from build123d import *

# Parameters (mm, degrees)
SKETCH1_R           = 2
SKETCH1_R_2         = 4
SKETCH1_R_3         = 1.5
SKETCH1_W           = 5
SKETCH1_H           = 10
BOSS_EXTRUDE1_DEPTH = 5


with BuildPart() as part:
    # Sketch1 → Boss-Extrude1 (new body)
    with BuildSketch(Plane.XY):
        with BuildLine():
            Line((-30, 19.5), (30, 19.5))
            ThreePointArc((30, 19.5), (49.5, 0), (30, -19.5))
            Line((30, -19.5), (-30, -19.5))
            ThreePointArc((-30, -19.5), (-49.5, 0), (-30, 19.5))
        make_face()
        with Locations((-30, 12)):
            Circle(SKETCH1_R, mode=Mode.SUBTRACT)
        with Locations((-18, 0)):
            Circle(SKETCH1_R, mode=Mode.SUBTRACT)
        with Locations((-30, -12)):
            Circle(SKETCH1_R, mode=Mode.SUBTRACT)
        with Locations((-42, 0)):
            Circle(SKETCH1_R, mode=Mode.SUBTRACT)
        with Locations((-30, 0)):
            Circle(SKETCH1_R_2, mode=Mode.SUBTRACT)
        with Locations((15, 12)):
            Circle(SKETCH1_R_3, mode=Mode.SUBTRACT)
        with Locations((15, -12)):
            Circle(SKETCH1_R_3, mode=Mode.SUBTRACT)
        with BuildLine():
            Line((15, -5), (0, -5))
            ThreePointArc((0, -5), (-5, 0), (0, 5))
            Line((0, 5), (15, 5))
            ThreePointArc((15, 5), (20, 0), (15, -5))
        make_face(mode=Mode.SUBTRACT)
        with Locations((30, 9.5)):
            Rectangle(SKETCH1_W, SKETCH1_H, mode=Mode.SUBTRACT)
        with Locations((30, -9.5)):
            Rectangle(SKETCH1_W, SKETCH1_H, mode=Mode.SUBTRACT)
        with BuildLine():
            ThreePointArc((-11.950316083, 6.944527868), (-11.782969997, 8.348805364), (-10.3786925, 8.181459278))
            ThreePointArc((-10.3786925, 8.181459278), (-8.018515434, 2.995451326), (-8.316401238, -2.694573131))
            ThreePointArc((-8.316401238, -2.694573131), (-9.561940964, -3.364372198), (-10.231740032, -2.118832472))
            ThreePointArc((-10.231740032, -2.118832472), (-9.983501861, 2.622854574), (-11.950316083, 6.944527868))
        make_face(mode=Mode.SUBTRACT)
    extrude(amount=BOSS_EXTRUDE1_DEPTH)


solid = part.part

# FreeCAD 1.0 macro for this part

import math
import FreeCAD as App
import Part
import Sketcher
from FreeCAD import Vector
Q = App.Units.Quantity

doc = App.newDocument("Part")
params = doc.addObject("Spreadsheet::Sheet", "Params")
for row, (alias, value) in enumerate([
    ("sketch1_diameter", "3 mm"),
    ("sketch1_diameter2", "4 mm"),
    ("sketch1_diameter3", "3 mm"),
    ("sketch1_diameter4", "4 mm"),
    ("sketch1_diameter5", "8 mm"),
    ("pad1_length", "5 mm"),
], start=1):
    params.set(f"A{row}", alias)
    params.set(f"B{row}", "=" + value)
    params.setAlias(f"B{row}", alias)

body = doc.addObject("PartDesign::Body", "Body")

# Sketch on XY plane
sketch1 = doc.addObject("Sketcher::SketchObject", "Sketch")
body.addObject(sketch1)
sketch1.AttachmentSupport = (doc.XY_Plane, [""])
sketch1.MapMode = "FlatFace"
sketch1.addGeometry([
    Part.LineSegment(Vector(30, 19.5, 0), Vector(-30, 19.5, 0)),  # 0
    Part.ArcOfCircle(Part.Circle(Vector(-30, 0, 0), Vector(0, 0, 1), 19.5), math.radians(90), math.radians(270)),  # 1
    Part.LineSegment(Vector(-30, -19.5, 0), Vector(30, -19.5, 0)),  # 2
    Part.ArcOfCircle(Part.Circle(Vector(30, 0, 0), Vector(0, 0, 1), 19.5), math.radians(-90), math.radians(90)),  # 3
    Part.Circle(Vector(15, -12, 0), Vector(0, 0, 1), 1.5),  # 4
    Part.LineSegment(Vector(27.5, -14.5, 0), Vector(27.5, -4.5, 0)),  # 5
    Part.LineSegment(Vector(27.5, -4.5, 0), Vector(32.5, -4.5, 0)),  # 6
    Part.LineSegment(Vector(32.5, -4.5, 0), Vector(32.5, -14.5, 0)),  # 7
    Part.LineSegment(Vector(32.5, -14.5, 0), Vector(27.5, -14.5, 0)),  # 8
    Part.Circle(Vector(-30, -12, 0), Vector(0, 0, 1), 2),  # 9
    Part.LineSegment(Vector(15, -5, 0), Vector(0, -5, 0)),  # 10
    Part.ArcOfCircle(Part.Circle(Vector(0, 0, 0), Vector(0, 0, 1), 5), math.radians(90), math.radians(270)),  # 11
    Part.LineSegment(Vector(0, 5, 0), Vector(15, 5, 0)),  # 12
    Part.ArcOfCircle(Part.Circle(Vector(15, 0, 0), Vector(0, 0, 1), 5), math.radians(-90), math.radians(90)),  # 13
    Part.LineSegment(Vector(27.5, 4.5, 0), Vector(27.5, 14.5, 0)),  # 14
    Part.LineSegment(Vector(27.5, 14.5, 0), Vector(32.5, 14.5, 0)),  # 15
    Part.LineSegment(Vector(32.5, 14.5, 0), Vector(32.5, 4.5, 0)),  # 16
    Part.LineSegment(Vector(32.5, 4.5, 0), Vector(27.5, 4.5, 0)),  # 17
    Part.Circle(Vector(15, 12, 0), Vector(0, 0, 1), 1.5),  # 18
    Part.ArcOfCircle(Part.Circle(Vector(-11.164504, 7.562994, 0), Vector(0, 0, 1), 1), math.radians(38.204179), math.radians(218.204178)),  # 19
    Part.ArcOfCircle(Part.Circle(Vector(-19.808434, 0.759871, 0), Vector(0, 0, 1), 12), math.radians(-16.730499), math.radians(38.204178)),  # 20
    Part.ArcOfCircle(Part.Circle(Vector(-9.274071, -2.406703, 0), Vector(0, 0, 1), 1), math.radians(163.269501), math.radians(343.269501)),  # 21
    Part.ArcOfCircle(Part.Circle(Vector(-19.808434, 0.759871, 0), Vector(0, 0, 1), 10), math.radians(-16.730499), math.radians(38.204178)),  # 22
    Part.Circle(Vector(-18, 0, 0), Vector(0, 0, 1), 2),  # 23
    Part.Circle(Vector(-30, 0, 0), Vector(0, 0, 1), 4),  # 24
    Part.Circle(Vector(-42, 0, 0), Vector(0, 0, 1), 2),  # 25
    Part.Circle(Vector(-30, 12, 0), Vector(0, 0, 1), 2),  # 26
], False)
sketch1.addConstraint([
    Sketcher.Constraint("Coincident", 0, 2, 1, 1),
    Sketcher.Constraint("Coincident", 1, 2, 2, 1),
    Sketcher.Constraint("Coincident", 2, 2, 3, 1),
    Sketcher.Constraint("Coincident", 3, 2, 0, 1),
    Sketcher.Constraint("Coincident", 5, 2, 6, 1),
    Sketcher.Constraint("Coincident", 6, 2, 7, 1),
    Sketcher.Constraint("Coincident", 7, 2, 8, 1),
    Sketcher.Constraint("Coincident", 8, 2, 5, 1),
    Sketcher.Constraint("Coincident", 10, 2, 11, 2),
    Sketcher.Constraint("Coincident", 11, 1, 12, 1),
    Sketcher.Constraint("Coincident", 12, 2, 13, 2),
    Sketcher.Constraint("Coincident", 13, 1, 10, 1),
    Sketcher.Constraint("Coincident", 14, 2, 15, 1),
    Sketcher.Constraint("Coincident", 15, 2, 16, 1),
    Sketcher.Constraint("Coincident", 16, 2, 17, 1),
    Sketcher.Constraint("Coincident", 17, 2, 14, 1),
    Sketcher.Constraint("Coincident", 19, 1, 20, 2),
    Sketcher.Constraint("Coincident", 20, 1, 21, 2),
    Sketcher.Constraint("Coincident", 21, 1, 22, 1),
    Sketcher.Constraint("Coincident", 22, 2, 19, 2),
    Sketcher.Constraint("Horizontal", 0),
    Sketcher.Constraint("Horizontal", 2),
    Sketcher.Constraint("Vertical", 5),
    Sketcher.Constraint("Horizontal", 6),
    Sketcher.Constraint("Vertical", 7),
    Sketcher.Constraint("Horizontal", 8),
    Sketcher.Constraint("Horizontal", 10),
    Sketcher.Constraint("Horizontal", 12),
    Sketcher.Constraint("Vertical", 14),
    Sketcher.Constraint("Horizontal", 15),
    Sketcher.Constraint("Vertical", 16),
    Sketcher.Constraint("Horizontal", 17),
    Sketcher.Constraint("Coincident", 11, 3, -1, 1),
    Sketcher.Constraint("Coincident", 22, 3, 20, 3),
    Sketcher.Constraint("Coincident", 24, 3, 1, 3),
    Sketcher.Constraint("PointOnObject", 1, 3, -1),
    Sketcher.Constraint("PointOnObject", 23, 3, -1),
    Sketcher.Constraint("PointOnObject", 25, 3, -1),
    Sketcher.Constraint("PointOnObject", 10, 2, -2),
    Sketcher.Constraint("PointOnObject", 11, 1, -2),
    Sketcher.Constraint("Diameter", 4, Q("3 mm")),
    Sketcher.Constraint("Diameter", 9, Q("4 mm")),
    Sketcher.Constraint("Diameter", 18, Q("3 mm")),
    Sketcher.Constraint("Diameter", 23, Q("4 mm")),
    Sketcher.Constraint("Diameter", 24, Q("8 mm")),
    Sketcher.Constraint("Diameter", 25, Q("4 mm")),
    Sketcher.Constraint("Diameter", 26, Q("4 mm")),
    Sketcher.Constraint("Radius", 11, Q("5 mm")),
    Sketcher.Constraint("Radius", 19, Q("1 mm")),
    Sketcher.Constraint("Radius", 20, Q("12 mm")),
    Sketcher.Constraint("Radius", 1, Q("19.5 mm")),
    Sketcher.Constraint("DistanceX", 0, 2, 0, 1, Q("60 mm")),
    Sketcher.Constraint("DistanceX", 2, 1, 2, 2, Q("60 mm")),
    Sketcher.Constraint("DistanceX", 6, 1, 6, 2, Q("5 mm")),
    Sketcher.Constraint("DistanceX", 10, 2, 10, 1, Q("15 mm")),
    Sketcher.Constraint("DistanceX", 12, 1, 12, 2, Q("15 mm")),
    Sketcher.Constraint("DistanceX", 15, 1, 15, 2, Q("5 mm")),
    Sketcher.Constraint("DistanceY", 5, 1, 5, 2, Q("10 mm")),
    Sketcher.Constraint("DistanceY", 14, 1, 14, 2, Q("10 mm")),
    Sketcher.Constraint("DistanceX", 1, 3, -1, 1, Q("30 mm")),
    Sketcher.Constraint("DistanceX", -1, 1, 3, 3, Q("30 mm")),
    Sketcher.Constraint("DistanceX", -1, 1, 4, 3, Q("15 mm")),
    Sketcher.Constraint("DistanceY", 4, 3, -1, 1, Q("12 mm")),
    Sketcher.Constraint("DistanceX", 9, 3, -1, 1, Q("30 mm")),
    Sketcher.Constraint("DistanceY", 9, 3, -1, 1, Q("12 mm")),
    Sketcher.Constraint("DistanceX", -1, 1, 13, 3, Q("15 mm")),
    Sketcher.Constraint("DistanceX", -1, 1, 18, 3, Q("15 mm")),
    Sketcher.Constraint("DistanceY", -1, 1, 18, 3, Q("12 mm")),
    Sketcher.Constraint("DistanceX", 23, 3, -1, 1, Q("18 mm")),
    Sketcher.Constraint("DistanceX", 25, 3, -1, 1, Q("42 mm")),
    Sketcher.Constraint("DistanceX", 26, 3, -1, 1, Q("30 mm")),
    Sketcher.Constraint("DistanceY", -1, 1, 26, 3, Q("12 mm")),
    Sketcher.Constraint("DistanceX", 0, 2, -1, 1, Q("30 mm")),
    Sketcher.Constraint("DistanceX", 1, 2, -1, 1, Q("30 mm")),
    Sketcher.Constraint("DistanceY", 2, 2, 5, 2, Q("15 mm")),
    Sketcher.Constraint("DistanceY", 14, 2, 3, 2, Q("5 mm")),
    Sketcher.Constraint("DistanceX", 5, 2, 16, 2, Q("5 mm")),
    Sketcher.Constraint("DistanceX", -1, 1, 5, 2, Q("27.5 mm")),
    Sketcher.Constraint("DistanceX", 20, 1, -1, 1, Q("8.316401 mm")),
    Sketcher.Constraint("DistanceY", -1, 1, 20, 3, Q("0.759871 mm")),
    Sketcher.Constraint("DistanceX", 21, 3, -1, 1, Q("9.274071 mm")),
    Sketcher.Constraint("DistanceY", -1, 1, 19, 1, Q("8.181459 mm")),
    Sketcher.Constraint("DistanceX", 21, 1, -1, 1, Q("10.23174 mm")),
    Sketcher.Constraint("DistanceX", 20, 3, 19, 3, Q("8.64393 mm")),
    Sketcher.Constraint("DistanceX", 19, 1, 21, 3, Q("1.104622 mm")),
    Sketcher.Constraint("DistanceX", 22, 2, 19, 3, Q("0.785812 mm")),
])
sketch1.setExpression("Constraints[40]", "Params.sketch1_diameter")
sketch1.setExpression("Constraints[41]", "Params.sketch1_diameter2")
sketch1.setExpression("Constraints[42]", "Params.sketch1_diameter3")
sketch1.setExpression("Constraints[43]", "Params.sketch1_diameter4")
sketch1.setExpression("Constraints[44]", "Params.sketch1_diameter5")
pad1 = doc.addObject("PartDesign::Pad", "Pad")
body.addObject(pad1)
pad1.Profile = sketch1
pad1.setExpression("Length", "Params.pad1_length")

doc.recompute()
